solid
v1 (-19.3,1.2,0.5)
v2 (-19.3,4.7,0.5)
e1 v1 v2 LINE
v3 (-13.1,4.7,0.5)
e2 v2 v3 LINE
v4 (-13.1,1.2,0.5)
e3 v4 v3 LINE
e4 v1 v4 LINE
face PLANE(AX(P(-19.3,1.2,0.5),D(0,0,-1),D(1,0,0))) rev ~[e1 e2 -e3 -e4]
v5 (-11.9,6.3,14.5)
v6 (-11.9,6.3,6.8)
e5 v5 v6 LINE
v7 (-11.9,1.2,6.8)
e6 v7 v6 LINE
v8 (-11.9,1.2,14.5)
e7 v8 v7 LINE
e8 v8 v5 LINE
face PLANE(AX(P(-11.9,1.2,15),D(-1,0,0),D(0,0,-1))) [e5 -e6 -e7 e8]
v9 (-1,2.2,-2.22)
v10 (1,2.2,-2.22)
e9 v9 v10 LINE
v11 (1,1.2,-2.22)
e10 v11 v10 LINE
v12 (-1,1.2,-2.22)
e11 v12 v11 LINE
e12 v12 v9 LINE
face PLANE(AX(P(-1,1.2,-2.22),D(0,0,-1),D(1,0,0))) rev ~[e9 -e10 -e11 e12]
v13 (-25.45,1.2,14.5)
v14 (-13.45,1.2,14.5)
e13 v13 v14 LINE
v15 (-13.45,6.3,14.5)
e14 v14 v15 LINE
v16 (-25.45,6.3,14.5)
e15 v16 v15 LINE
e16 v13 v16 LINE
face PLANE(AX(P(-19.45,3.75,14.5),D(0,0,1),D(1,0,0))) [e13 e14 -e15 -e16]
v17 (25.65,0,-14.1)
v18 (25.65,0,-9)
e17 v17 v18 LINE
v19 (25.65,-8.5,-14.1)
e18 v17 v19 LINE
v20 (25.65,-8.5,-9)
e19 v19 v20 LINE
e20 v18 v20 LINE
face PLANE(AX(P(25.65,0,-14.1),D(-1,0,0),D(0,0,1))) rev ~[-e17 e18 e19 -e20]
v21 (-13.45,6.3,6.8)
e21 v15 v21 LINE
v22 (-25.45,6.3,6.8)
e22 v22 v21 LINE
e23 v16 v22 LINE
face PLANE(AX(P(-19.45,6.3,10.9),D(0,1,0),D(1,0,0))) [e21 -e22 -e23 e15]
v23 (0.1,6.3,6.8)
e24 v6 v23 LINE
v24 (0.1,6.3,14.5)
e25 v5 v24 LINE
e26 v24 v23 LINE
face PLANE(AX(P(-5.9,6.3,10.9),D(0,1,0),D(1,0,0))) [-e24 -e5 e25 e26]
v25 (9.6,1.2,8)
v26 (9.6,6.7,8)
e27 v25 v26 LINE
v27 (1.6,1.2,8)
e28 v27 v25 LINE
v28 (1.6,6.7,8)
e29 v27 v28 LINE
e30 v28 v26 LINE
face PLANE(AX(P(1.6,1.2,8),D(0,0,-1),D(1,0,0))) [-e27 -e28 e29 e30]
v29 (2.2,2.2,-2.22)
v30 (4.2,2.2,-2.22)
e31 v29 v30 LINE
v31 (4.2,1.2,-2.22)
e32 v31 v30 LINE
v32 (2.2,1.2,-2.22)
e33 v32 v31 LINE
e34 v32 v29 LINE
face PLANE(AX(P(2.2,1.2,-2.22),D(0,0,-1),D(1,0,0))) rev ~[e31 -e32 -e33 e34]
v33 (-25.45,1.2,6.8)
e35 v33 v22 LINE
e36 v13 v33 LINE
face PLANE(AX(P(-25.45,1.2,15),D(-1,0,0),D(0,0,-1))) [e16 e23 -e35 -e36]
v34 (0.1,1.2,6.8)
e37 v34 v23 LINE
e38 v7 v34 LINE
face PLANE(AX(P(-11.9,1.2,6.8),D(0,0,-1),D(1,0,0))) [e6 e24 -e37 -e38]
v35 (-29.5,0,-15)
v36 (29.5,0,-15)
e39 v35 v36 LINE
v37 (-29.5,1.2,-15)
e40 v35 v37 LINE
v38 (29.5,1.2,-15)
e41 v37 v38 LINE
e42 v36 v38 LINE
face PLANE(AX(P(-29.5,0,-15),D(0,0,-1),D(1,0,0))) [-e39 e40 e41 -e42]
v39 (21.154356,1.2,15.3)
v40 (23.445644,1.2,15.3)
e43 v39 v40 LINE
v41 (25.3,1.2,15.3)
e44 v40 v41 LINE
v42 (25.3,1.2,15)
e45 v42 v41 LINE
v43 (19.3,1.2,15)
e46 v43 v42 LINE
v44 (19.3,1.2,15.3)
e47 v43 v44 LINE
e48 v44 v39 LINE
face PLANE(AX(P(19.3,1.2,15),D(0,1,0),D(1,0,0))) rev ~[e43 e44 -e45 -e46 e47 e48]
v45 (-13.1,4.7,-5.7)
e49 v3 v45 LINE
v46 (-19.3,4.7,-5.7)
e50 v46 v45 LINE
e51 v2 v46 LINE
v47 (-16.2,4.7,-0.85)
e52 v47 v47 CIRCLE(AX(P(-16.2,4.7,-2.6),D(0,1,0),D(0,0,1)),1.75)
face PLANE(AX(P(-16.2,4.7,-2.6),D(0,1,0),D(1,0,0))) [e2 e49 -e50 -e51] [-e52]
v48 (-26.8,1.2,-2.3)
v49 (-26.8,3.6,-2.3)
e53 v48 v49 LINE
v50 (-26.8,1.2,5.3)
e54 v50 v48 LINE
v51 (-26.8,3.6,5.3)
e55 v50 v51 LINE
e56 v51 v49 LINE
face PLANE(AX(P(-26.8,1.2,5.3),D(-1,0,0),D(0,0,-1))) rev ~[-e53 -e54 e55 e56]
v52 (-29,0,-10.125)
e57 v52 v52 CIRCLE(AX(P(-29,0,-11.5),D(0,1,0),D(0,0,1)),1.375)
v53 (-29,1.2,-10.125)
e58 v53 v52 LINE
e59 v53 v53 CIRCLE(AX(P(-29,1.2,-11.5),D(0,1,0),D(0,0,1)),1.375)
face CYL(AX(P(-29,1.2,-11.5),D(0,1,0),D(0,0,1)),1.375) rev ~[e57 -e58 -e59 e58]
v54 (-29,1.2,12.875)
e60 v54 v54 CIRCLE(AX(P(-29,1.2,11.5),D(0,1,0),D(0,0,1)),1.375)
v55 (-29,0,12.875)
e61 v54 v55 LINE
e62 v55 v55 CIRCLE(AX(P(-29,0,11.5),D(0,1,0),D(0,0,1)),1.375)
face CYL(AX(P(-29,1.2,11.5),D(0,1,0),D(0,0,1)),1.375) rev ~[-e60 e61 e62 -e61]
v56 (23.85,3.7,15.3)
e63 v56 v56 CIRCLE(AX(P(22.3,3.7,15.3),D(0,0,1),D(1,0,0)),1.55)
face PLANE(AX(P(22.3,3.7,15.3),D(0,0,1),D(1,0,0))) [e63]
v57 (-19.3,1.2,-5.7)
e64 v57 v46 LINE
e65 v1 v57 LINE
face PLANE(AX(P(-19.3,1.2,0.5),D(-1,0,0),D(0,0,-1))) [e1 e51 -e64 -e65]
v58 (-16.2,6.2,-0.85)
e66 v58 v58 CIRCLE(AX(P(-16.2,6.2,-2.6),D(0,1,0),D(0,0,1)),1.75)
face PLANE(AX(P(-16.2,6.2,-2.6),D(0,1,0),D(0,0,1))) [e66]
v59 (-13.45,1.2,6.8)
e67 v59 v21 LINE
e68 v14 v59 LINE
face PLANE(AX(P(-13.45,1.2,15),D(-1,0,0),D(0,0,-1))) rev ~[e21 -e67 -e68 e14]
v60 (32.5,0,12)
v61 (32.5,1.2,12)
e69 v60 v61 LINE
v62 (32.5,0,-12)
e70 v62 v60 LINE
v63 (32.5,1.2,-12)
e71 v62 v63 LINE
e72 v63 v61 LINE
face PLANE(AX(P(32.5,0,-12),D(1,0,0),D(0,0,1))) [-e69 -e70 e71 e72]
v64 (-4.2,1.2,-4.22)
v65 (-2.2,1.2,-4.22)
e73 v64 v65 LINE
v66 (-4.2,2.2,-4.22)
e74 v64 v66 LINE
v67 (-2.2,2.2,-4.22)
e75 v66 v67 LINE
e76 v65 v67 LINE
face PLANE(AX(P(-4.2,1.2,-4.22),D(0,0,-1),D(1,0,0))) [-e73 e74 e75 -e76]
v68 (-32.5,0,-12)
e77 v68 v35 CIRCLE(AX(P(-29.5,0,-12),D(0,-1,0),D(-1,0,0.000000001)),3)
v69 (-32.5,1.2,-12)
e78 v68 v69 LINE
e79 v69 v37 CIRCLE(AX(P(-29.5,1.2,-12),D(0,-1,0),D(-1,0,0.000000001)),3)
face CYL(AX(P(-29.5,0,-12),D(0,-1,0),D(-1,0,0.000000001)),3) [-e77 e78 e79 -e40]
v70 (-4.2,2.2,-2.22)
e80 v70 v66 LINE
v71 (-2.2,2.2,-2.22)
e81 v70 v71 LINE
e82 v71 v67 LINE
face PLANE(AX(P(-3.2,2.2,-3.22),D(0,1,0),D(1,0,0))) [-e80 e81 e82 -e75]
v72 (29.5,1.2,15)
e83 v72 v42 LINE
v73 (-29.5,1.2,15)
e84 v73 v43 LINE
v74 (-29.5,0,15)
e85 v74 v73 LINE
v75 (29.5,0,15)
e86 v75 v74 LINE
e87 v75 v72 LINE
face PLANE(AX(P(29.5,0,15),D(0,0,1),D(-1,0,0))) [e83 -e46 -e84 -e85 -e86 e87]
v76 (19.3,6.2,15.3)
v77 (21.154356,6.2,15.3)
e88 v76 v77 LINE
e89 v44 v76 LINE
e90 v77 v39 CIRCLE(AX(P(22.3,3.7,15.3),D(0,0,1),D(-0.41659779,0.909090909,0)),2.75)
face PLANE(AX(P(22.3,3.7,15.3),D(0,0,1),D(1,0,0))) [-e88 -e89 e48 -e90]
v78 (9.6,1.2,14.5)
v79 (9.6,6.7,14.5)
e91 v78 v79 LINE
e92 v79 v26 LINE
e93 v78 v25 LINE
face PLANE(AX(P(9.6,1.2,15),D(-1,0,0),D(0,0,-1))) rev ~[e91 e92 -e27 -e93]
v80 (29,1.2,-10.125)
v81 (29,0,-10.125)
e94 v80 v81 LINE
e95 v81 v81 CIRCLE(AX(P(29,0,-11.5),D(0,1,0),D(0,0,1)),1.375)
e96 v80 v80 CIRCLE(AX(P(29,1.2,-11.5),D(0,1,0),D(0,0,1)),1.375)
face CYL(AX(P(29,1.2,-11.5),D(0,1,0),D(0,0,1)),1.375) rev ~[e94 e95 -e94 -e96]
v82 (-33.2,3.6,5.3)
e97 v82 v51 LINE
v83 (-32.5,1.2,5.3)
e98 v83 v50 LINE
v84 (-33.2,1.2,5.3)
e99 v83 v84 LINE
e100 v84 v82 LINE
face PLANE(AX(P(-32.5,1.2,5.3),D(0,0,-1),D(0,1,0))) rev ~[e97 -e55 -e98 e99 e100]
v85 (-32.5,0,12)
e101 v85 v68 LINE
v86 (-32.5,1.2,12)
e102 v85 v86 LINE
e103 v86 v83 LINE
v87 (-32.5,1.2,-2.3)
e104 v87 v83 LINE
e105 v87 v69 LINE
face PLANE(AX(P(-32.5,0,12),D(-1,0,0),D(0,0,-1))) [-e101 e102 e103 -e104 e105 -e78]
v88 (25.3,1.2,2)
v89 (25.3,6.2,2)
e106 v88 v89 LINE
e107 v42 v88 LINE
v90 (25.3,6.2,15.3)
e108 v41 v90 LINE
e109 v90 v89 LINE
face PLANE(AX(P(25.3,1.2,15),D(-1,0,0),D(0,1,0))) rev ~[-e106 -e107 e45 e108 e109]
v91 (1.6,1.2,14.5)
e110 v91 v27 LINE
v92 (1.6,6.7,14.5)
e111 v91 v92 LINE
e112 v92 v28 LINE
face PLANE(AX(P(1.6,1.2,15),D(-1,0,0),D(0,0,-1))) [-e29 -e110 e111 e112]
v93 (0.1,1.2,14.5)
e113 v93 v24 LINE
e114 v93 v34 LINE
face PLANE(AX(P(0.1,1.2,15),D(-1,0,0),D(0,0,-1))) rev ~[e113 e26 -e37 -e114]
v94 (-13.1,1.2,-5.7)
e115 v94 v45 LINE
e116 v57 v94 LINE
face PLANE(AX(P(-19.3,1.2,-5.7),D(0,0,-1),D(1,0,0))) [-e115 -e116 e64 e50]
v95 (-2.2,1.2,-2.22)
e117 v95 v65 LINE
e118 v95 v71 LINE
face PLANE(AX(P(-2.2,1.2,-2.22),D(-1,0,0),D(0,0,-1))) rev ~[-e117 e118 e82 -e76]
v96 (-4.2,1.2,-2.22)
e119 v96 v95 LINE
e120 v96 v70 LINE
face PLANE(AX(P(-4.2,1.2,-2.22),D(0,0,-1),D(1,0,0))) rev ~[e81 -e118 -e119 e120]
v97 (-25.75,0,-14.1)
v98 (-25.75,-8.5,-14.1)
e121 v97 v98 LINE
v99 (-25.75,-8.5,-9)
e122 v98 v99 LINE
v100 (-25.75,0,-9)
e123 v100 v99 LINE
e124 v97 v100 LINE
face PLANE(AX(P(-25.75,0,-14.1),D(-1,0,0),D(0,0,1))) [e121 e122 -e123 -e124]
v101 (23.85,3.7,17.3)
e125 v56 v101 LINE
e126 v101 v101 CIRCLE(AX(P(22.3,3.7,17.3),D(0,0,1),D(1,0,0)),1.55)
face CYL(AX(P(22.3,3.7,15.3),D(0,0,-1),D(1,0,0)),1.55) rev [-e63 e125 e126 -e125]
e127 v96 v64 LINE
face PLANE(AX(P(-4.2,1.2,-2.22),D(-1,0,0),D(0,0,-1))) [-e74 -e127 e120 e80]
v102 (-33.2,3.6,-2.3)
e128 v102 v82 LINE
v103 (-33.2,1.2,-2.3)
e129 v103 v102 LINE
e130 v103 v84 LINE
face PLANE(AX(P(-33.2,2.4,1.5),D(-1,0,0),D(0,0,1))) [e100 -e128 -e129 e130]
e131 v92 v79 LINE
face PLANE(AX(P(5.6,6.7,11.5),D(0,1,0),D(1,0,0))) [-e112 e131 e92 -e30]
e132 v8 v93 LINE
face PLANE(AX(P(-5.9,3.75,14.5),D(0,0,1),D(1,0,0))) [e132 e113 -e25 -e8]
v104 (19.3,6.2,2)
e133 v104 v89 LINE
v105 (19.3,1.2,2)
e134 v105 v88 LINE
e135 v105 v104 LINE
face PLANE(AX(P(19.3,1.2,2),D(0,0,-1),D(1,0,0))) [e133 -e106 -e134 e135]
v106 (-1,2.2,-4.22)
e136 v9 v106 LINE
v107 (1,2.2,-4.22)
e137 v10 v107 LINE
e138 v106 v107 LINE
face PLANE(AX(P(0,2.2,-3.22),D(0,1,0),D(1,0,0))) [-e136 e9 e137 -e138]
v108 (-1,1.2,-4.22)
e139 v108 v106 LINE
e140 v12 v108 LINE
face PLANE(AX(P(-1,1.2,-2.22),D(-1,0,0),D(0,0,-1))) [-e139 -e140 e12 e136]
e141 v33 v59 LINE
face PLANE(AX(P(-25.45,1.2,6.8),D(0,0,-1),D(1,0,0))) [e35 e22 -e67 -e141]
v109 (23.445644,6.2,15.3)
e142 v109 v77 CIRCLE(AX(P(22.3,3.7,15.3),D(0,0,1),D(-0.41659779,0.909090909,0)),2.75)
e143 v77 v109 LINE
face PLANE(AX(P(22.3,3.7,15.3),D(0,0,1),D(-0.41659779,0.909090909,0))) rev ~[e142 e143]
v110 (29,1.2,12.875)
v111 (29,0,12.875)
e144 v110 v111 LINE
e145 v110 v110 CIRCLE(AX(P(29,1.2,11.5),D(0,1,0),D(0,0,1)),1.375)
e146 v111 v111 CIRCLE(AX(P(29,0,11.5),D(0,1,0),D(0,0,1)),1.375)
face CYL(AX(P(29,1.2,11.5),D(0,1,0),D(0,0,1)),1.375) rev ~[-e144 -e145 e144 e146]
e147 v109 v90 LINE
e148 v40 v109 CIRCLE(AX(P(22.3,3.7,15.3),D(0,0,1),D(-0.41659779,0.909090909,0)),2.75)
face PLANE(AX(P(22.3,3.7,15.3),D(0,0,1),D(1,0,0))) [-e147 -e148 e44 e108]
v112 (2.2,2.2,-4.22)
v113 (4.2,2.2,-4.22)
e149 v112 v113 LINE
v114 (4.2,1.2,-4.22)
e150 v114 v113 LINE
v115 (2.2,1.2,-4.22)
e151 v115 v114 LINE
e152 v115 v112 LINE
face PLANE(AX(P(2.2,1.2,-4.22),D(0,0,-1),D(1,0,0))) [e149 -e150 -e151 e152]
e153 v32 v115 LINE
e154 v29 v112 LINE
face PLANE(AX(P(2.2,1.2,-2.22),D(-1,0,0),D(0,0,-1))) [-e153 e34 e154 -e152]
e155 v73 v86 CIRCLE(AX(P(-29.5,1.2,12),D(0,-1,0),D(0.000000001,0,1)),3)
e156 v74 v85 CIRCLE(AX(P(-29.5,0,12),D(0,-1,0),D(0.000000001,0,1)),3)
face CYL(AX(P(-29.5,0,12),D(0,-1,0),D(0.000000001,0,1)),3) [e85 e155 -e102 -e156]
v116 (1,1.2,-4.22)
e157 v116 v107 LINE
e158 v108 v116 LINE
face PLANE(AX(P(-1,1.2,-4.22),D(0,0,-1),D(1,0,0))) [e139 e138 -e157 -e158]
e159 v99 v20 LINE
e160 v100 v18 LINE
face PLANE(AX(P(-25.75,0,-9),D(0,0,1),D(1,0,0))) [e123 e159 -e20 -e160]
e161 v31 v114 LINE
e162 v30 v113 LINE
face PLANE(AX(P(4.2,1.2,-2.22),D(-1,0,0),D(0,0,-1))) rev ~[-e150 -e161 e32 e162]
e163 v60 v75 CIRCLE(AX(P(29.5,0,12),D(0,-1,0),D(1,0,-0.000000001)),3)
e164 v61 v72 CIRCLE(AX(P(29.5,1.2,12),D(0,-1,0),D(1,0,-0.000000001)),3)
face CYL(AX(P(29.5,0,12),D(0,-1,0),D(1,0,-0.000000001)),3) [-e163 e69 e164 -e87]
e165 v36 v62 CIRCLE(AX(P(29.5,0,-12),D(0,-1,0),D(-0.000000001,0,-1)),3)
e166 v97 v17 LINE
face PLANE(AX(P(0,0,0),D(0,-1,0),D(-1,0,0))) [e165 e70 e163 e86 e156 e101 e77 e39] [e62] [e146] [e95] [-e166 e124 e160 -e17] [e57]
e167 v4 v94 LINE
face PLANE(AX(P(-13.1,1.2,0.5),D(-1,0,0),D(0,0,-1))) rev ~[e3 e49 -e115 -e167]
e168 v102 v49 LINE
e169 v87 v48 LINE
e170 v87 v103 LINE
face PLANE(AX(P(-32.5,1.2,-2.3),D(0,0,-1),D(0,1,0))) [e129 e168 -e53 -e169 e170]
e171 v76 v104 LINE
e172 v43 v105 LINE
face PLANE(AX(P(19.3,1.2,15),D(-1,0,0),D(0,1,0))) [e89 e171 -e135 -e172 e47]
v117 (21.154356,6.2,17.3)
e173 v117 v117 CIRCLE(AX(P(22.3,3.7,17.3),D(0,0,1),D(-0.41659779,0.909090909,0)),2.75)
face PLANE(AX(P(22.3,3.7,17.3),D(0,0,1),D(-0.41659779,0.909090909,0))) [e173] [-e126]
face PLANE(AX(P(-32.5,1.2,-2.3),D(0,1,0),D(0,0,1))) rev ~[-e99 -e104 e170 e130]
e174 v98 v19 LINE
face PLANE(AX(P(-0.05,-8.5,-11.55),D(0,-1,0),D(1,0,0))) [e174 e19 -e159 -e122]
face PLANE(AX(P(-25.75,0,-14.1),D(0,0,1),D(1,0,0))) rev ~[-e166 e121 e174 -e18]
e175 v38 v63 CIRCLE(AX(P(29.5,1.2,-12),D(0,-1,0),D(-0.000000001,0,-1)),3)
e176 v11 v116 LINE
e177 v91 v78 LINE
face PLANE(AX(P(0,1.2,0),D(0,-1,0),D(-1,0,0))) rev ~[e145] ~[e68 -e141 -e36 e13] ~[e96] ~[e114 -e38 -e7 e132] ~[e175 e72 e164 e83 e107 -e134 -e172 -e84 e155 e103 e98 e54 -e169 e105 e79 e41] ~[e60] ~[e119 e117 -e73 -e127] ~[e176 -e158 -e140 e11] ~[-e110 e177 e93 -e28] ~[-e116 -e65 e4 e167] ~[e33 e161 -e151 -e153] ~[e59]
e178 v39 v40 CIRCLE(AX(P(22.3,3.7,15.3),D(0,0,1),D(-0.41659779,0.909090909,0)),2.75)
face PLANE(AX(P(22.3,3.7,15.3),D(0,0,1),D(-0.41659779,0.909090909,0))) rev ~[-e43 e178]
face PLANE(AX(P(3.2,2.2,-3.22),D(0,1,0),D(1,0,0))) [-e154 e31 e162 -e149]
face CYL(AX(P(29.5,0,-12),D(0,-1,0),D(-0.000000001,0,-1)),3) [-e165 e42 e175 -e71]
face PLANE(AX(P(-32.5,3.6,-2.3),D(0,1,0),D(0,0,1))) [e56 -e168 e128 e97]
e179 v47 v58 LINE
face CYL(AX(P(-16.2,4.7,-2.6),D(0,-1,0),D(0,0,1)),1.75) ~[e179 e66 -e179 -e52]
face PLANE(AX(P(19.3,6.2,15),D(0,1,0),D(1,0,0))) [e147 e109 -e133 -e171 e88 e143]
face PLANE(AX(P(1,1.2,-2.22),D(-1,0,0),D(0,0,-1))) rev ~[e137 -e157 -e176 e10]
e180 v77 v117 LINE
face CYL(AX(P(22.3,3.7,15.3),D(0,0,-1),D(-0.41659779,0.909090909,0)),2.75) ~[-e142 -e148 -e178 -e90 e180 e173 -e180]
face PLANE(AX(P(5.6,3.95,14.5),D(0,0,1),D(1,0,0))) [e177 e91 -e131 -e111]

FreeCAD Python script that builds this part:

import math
import FreeCAD as App
import Part
import Sketcher

V = App.Vector
Q = App.Units.Quantity

doc = App.newDocument("Part")
body = doc.addObject("PartDesign::Body", "Body")

# Sketch on XZ plane
sketch1 = doc.addObject("Sketcher::SketchObject", "Sketch")
body.addObject(sketch1)
sketch1.AttachmentSupport = (doc.XZ_Plane, [""])
sketch1.MapMode = "FlatFace"
sketch1.addGeometry([
    Part.LineSegment(V(29.5, -15, 0), V(-29.5, -15, 0)),  # 0
    Part.ArcOfCircle(Part.Circle(V(-29.5, -12, 0), V(0, 0, 1), 3), math.radians(180), math.radians(270)),  # 1
    Part.LineSegment(V(-32.5, -12, 0), V(-32.5, 12, 0)),  # 2
    Part.ArcOfCircle(Part.Circle(V(-29.5, 12, 0), V(0, 0, 1), 3), math.radians(90), math.radians(180)),  # 3
    Part.LineSegment(V(-29.5, 15, 0), V(29.5, 15, 0)),  # 4
    Part.ArcOfCircle(Part.Circle(V(29.5, 12, 0), V(0, 0, 1), 3), math.radians(0), math.radians(90)),  # 5
    Part.LineSegment(V(32.5, 12, 0), V(32.5, -12, 0)),  # 6
    Part.ArcOfCircle(Part.Circle(V(29.5, -12, 0), V(0, 0, 1), 3), math.radians(-90), math.radians(0)),  # 7
], False)
sketch1.addConstraint([
    Sketcher.Constraint("Tangent", 0, 2, 1, 2),
    Sketcher.Constraint("Tangent", 1, 1, 2, 1),
    Sketcher.Constraint("Tangent", 2, 2, 3, 2),
    Sketcher.Constraint("Tangent", 3, 1, 4, 1),
    Sketcher.Constraint("Tangent", 4, 2, 5, 2),
    Sketcher.Constraint("Tangent", 5, 1, 6, 1),
    Sketcher.Constraint("Tangent", 6, 2, 7, 2),
    Sketcher.Constraint("Tangent", 7, 1, 0, 1),
    Sketcher.Constraint("Horizontal", 0),
    Sketcher.Constraint("Vertical", 2),
    Sketcher.Constraint("Horizontal", 4),
    Sketcher.Constraint("Vertical", 6),
    Sketcher.Constraint("Equal", 1, 3),
    Sketcher.Constraint("Equal", 3, 5),
    Sketcher.Constraint("Equal", 5, 7),
    Sketcher.Constraint("Symmetric", 1, 3, 5, 3, -1, 1),
    Sketcher.Constraint("Radius", 1, Q("3 mm")),
    Sketcher.Constraint("DistanceX", 0, 2, 0, 1, Q("59 mm")),
    Sketcher.Constraint("DistanceY", 2, 1, 2, 2, Q("24 mm")),
])
pad1 = doc.addObject("PartDesign::Pad", "Pad")
body.addObject(pad1)
pad1.Profile = sketch1
pad1.Length = 1.2
pad1.Reversed = True

# Sketch on XZ plane
sketch2 = doc.addObject("Sketcher::SketchObject", "Sketch001")
body.addObject(sketch2)
sketch2.AttachmentSupport = (doc.XZ_Plane, [""])
sketch2.MapMode = "FlatFace"
sketch2.AttachmentOffset = App.Placement(V(0, 0, -1.2), App.Rotation())
sketch2.addGeometry([
    Part.Circle(V(29, 11.5, 0), V(0, 0, 1), 1.4),
    Part.Circle(V(29, -11.5, 0), V(0, 0, 1), 1.4),
    Part.Circle(V(-29, 11.5, 0), V(0, 0, 1), 1.4),
    Part.Circle(V(-29, -11.5, 0), V(0, 0, 1), 1.4),
], False)
sketch2.addConstraint([
    Sketcher.Constraint("Equal", 0, 1),
    Sketcher.Constraint("Equal", 1, 2),
    Sketcher.Constraint("Equal", 2, 3),
    Sketcher.Constraint("Symmetric", 1, 3, 2, 3, -1, 1),
    Sketcher.Constraint("Symmetric", 0, 3, 3, 3, -1, 1),
    Sketcher.Constraint("Symmetric", 0, 3, 2, 3, -2),
    Sketcher.Constraint("Diameter", 0, Q("2.75 mm")),
    Sketcher.Constraint("DistanceX", -1, 1, 0, 3, Q("29 mm")),
    Sketcher.Constraint("DistanceY", 1, 3, 0, 3, Q("23 mm")),
])
pocket1 = doc.addObject("PartDesign::Pocket", "Pocket")
body.addObject(pocket1)
pocket1.Profile = sketch2
pocket1.Length = 1.2
pocket1.Reversed = True

# Sketch on XZ plane
sketch3 = doc.addObject("Sketcher::SketchObject", "Sketch002")
body.addObject(sketch3)
sketch3.AttachmentSupport = (doc.XZ_Plane, [""])
sketch3.MapMode = "FlatFace"
sketch3.AttachmentOffset = App.Placement(V(0, 0, -1.2), App.Rotation())
sketch3.addGeometry([
    Part.LineSegment(V(19, 2, 0), V(19, 15, 0)),
    Part.LineSegment(V(19, 15, 0), V(25, 15, 0)),
    Part.LineSegment(V(25, 15, 0), V(25, 2, 0)),
    Part.LineSegment(V(25, 2, 0), V(19, 2, 0)),
], False)
sketch3.addConstraint([
    Sketcher.Constraint("Coincident", 0, 2, 1, 1),
    Sketcher.Constraint("Coincident", 1, 2, 2, 1),
    Sketcher.Constraint("Coincident", 2, 2, 3, 1),
    Sketcher.Constraint("Coincident", 3, 2, 0, 1),
    Sketcher.Constraint("Vertical", 0),
    Sketcher.Constraint("Horizontal", 1),
    Sketcher.Constraint("Vertical", 2),
    Sketcher.Constraint("Horizontal", 3),
    Sketcher.Constraint("DistanceX", 1, 1, 1, 2, Q("6 mm")),
    Sketcher.Constraint("DistanceY", 0, 1, 0, 2, Q("13 mm")),
    Sketcher.Constraint("DistanceY", -1, 1, 0, 2, Q("15 mm")),
    Sketcher.Constraint("DistanceX", -1, 1, 0, 2, Q("19.3 mm")),
])
pad2 = doc.addObject("PartDesign::Pad", "Pad001")
body.addObject(pad2)
pad2.Profile = sketch3
pad2.Length = 5
pad2.Reversed = True

# Sketch on XY plane
sketch4 = doc.addObject("Sketcher::SketchObject", "Sketch003")
body.addObject(sketch4)
sketch4.AttachmentSupport = (doc.XY_Plane, [""])
sketch4.MapMode = "FlatFace"
sketch4.AttachmentOffset = App.Placement(V(0, 0, 15), App.Rotation())
sketch4.addGeometry([
    Part.LineSegment(V(19, 6, 0), V(19, 1, 0)),
    Part.LineSegment(V(19, 1, 0), V(25, 1, 0)),
    Part.LineSegment(V(25, 1, 0), V(25, 6, 0)),
    Part.LineSegment(V(25, 6, 0), V(19, 6, 0)),
], False)
sketch4.addConstraint([
    Sketcher.Constraint("Coincident", 0, 2, 1, 1),
    Sketcher.Constraint("Coincident", 1, 2, 2, 1),
    Sketcher.Constraint("Coincident", 2, 2, 3, 1),
    Sketcher.Constraint("Coincident", 3, 2, 0, 1),
    Sketcher.Constraint("Vertical", 0),
    Sketcher.Constraint("Horizontal", 1),
    Sketcher.Constraint("Vertical", 2),
    Sketcher.Constraint("Horizontal", 3),
    Sketcher.Constraint("DistanceX", 1, 1, 1, 2, Q("6 mm")),
    Sketcher.Constraint("DistanceY", 0, 2, 0, 1, Q("5 mm")),
    Sketcher.Constraint("DistanceX", -1, 1, 0, 2, Q("19.3 mm")),
    Sketcher.Constraint("DistanceY", -1, 1, 0, 2, Q("1.2 mm")),
])
pad3 = doc.addObject("PartDesign::Pad", "Pad002")
body.addObject(pad3)
pad3.Profile = sketch4
pad3.Length = 0.3

# Sketch on XZ plane
sketch5 = doc.addObject("Sketcher::SketchObject", "Sketch004")
body.addObject(sketch5)
sketch5.AttachmentSupport = (doc.XZ_Plane, [""])
sketch5.MapMode = "FlatFace"
sketch5.AttachmentOffset = App.Placement(V(0, 0, -1.2), App.Rotation())
sketch5.addGeometry([
    Part.LineSegment(V(2, 8, 0), V(2, 15, 0)),
    Part.LineSegment(V(2, 15, 0), V(10, 15, 0)),
    Part.LineSegment(V(10, 15, 0), V(10, 8, 0)),
    Part.LineSegment(V(10, 8, 0), V(2, 8, 0)),
], False)
sketch5.addConstraint([
    Sketcher.Constraint("Coincident", 0, 2, 1, 1),
    Sketcher.Constraint("Coincident", 1, 2, 2, 1),
    Sketcher.Constraint("Coincident", 2, 2, 3, 1),
    Sketcher.Constraint("Coincident", 3, 2, 0, 1),
    Sketcher.Constraint("Vertical", 0),
    Sketcher.Constraint("Horizontal", 1),
    Sketcher.Constraint("Vertical", 2),
    Sketcher.Constraint("Horizontal", 3),
    Sketcher.Constraint("DistanceX", 1, 1, 1, 2, Q("8 mm")),
    Sketcher.Constraint("DistanceY", 0, 1, 0, 2, Q("7 mm")),
    Sketcher.Constraint("DistanceY", -1, 1, 0, 2, Q("15 mm")),
    Sketcher.Constraint("DistanceX", -1, 1, 0, 2, Q("1.6 mm")),
])
pad4 = doc.addObject("PartDesign::Pad", "Pad003")
body.addObject(pad4)
pad4.Profile = sketch5
pad4.Length = 5.5
pad4.Reversed = True

# Sketch on XZ plane
sketch6 = doc.addObject("Sketcher::SketchObject", "Sketch005")
body.addObject(sketch6)
sketch6.AttachmentSupport = (doc.XZ_Plane, [""])
sketch6.MapMode = "FlatFace"
sketch6.AttachmentOffset = App.Placement(V(0, 0, -1.2), App.Rotation())
sketch6.addGeometry([
    Part.LineSegment(V(-12, 7, 0), V(-12, 15, 0)),
    Part.LineSegment(V(-12, 15, 0), V(0, 15, 0)),
    Part.LineSegment(V(0, 15, 0), V(0, 7, 0)),
    Part.LineSegment(V(0, 7, 0), V(-12, 7, 0)),
], False)
sketch6.addConstraint([
    Sketcher.Constraint("Coincident", 0, 2, 1, 1),
    Sketcher.Constraint("Coincident", 1, 2, 2, 1),
    Sketcher.Constraint("Coincident", 2, 2, 3, 1),
    Sketcher.Constraint("Coincident", 3, 2, 0, 1),
    Sketcher.Constraint("Vertical", 0),
    Sketcher.Constraint("Horizontal", 1),
    Sketcher.Constraint("Vertical", 2),
    Sketcher.Constraint("Horizontal", 3),
    Sketcher.Constraint("DistanceX", 1, 1, 1, 2, Q("12 mm")),
    Sketcher.Constraint("DistanceY", 0, 1, 0, 2, Q("8.2 mm")),
    Sketcher.Constraint("DistanceY", -1, 1, 0, 2, Q("15 mm")),
    Sketcher.Constraint("DistanceX", 0, 2, -1, 1, Q("11.9 mm")),
])
pad5 = doc.addObject("PartDesign::Pad", "Pad004")
body.addObject(pad5)
pad5.Profile = sketch6
pad5.Length = 5.1
pad5.Reversed = True

# Sketch on XZ plane
sketch7 = doc.addObject("Sketcher::SketchObject", "Sketch006")
body.addObject(sketch7)
sketch7.AttachmentSupport = (doc.XZ_Plane, [""])
sketch7.MapMode = "FlatFace"
sketch7.AttachmentOffset = App.Placement(V(0, 0, -1.2), App.Rotation())
sketch7.addGeometry([
    Part.LineSegment(V(-25, 7, 0), V(-25, 15, 0)),
    Part.LineSegment(V(-25, 15, 0), V(-13, 15, 0)),
    Part.LineSegment(V(-13, 15, 0), V(-13, 7, 0)),
    Part.LineSegment(V(-13, 7, 0), V(-25, 7, 0)),
], False)
sketch7.addConstraint([
    Sketcher.Constraint("Coincident", 0, 2, 1, 1),
    Sketcher.Constraint("Coincident", 1, 2, 2, 1),
    Sketcher.Constraint("Coincident", 2, 2, 3, 1),
    Sketcher.Constraint("Coincident", 3, 2, 0, 1),
    Sketcher.Constraint("Vertical", 0),
    Sketcher.Constraint("Horizontal", 1),
    Sketcher.Constraint("Vertical", 2),
    Sketcher.Constraint("Horizontal", 3),
    Sketcher.Constraint("DistanceX", 1, 1, 1, 2, Q("12 mm")),
    Sketcher.Constraint("DistanceY", 0, 1, 0, 2, Q("8.2 mm")),
    Sketcher.Constraint("DistanceY", -1, 1, 0, 2, Q("15 mm")),
    Sketcher.Constraint("DistanceX", 0, 2, -1, 1, Q("25.45 mm")),
])
pad6 = doc.addObject("PartDesign::Pad", "Pad005")
body.addObject(pad6)
pad6.Profile = sketch7
pad6.Length = 5.1
pad6.Reversed = True

# Sketch on XZ plane
sketch8 = doc.addObject("Sketcher::SketchObject", "Sketch007")
body.addObject(sketch8)
sketch8.AttachmentSupport = (doc.XZ_Plane, [""])
sketch8.MapMode = "FlatFace"
sketch8.AttachmentOffset = App.Placement(V(0, 0, -1.2), App.Rotation())
sketch8.addGeometry([
    Part.LineSegment(V(-32, -2, 0), V(-32, 5, 0)),
    Part.LineSegment(V(-32, 5, 0), V(-27, 5, 0)),
    Part.LineSegment(V(-27, 5, 0), V(-27, -2, 0)),
    Part.LineSegment(V(-27, -2, 0), V(-32, -2, 0)),
], False)
sketch8.addConstraint([
    Sketcher.Constraint("Coincident", 0, 2, 1, 1),
    Sketcher.Constraint("Coincident", 1, 2, 2, 1),
    Sketcher.Constraint("Coincident", 2, 2, 3, 1),
    Sketcher.Constraint("Coincident", 3, 2, 0, 1),
    Sketcher.Constraint("Vertical", 0),
    Sketcher.Constraint("Horizontal", 1),
    Sketcher.Constraint("Vertical", 2),
    Sketcher.Constraint("Horizontal", 3),
    Sketcher.Constraint("DistanceX", 1, 1, 1, 2, Q("5.7 mm")),
    Sketcher.Constraint("DistanceY", 0, 1, 0, 2, Q("7.6 mm")),
    Sketcher.Constraint("DistanceX", 0, 2, -1, 1, Q("32.5 mm")),
    Sketcher.Constraint("DistanceY", -1, 1, 0, 2, Q("5.3 mm")),
])
pad7 = doc.addObject("PartDesign::Pad", "Pad006")
body.addObject(pad7)
pad7.Profile = sketch8
pad7.Length = 2.4
pad7.Reversed = True

# Sketch on YZ plane
sketch9 = doc.addObject("Sketcher::SketchObject", "Sketch008")
body.addObject(sketch9)
sketch9.AttachmentSupport = (doc.YZ_Plane, [""])
sketch9.MapMode = "FlatFace"
sketch9.AttachmentOffset = App.Placement(V(0, 0, -32.5), App.Rotation())
sketch9.addGeometry([
    Part.LineSegment(V(3.6, -2.3, 0), V(1.2, -2.3, 0)),
    Part.LineSegment(V(1.2, -2.3, 0), V(1.2, 5.3, 0)),
    Part.LineSegment(V(1.2, 5.3, 0), V(3.6, 5.3, 0)),
    Part.LineSegment(V(3.6, 5.3, 0), V(3.6, -2.3, 0)),
], False)
sketch9.addConstraint([
    Sketcher.Constraint("Coincident", 0, 2, 1, 1),
    Sketcher.Constraint("Coincident", 1, 2, 2, 1),
    Sketcher.Constraint("Coincident", 2, 2, 3, 1),
    Sketcher.Constraint("Coincident", 3, 2, 0, 1),
    Sketcher.Constraint("Horizontal", 0),
    Sketcher.Constraint("Vertical", 1),
    Sketcher.Constraint("Horizontal", 2),
    Sketcher.Constraint("Vertical", 3),
    Sketcher.Constraint("DistanceX", 0, 2, 0, 1, Q("2.4 mm")),
    Sketcher.Constraint("DistanceY", 1, 1, 1, 2, Q("7.6 mm")),
    Sketcher.Constraint("DistanceX", -1, 1, 0, 2, Q("1.2 mm")),
    Sketcher.Constraint("DistanceY", 0, 2, -1, 1, Q("2.3 mm")),
])
pad8 = doc.addObject("PartDesign::Pad", "Pad007")
body.addObject(pad8)
pad8.Profile = sketch9
pad8.Length = 0.7
pad8.Reversed = True

# Sketch on XY plane
sketch10 = doc.addObject("Sketcher::SketchObject", "Sketch009")
body.addObject(sketch10)
sketch10.AttachmentSupport = (doc.XY_Plane, [""])
sketch10.MapMode = "FlatFace"
sketch10.AttachmentOffset = App.Placement(V(0, 0, 15), App.Rotation())
sketch10.addGeometry([
    Part.LineSegment(V(-25, 6, 0), V(-25, 1, 0)),  # 0
    Part.LineSegment(V(-25, 1, 0), V(-13, 1, 0)),  # 1
    Part.LineSegment(V(-13, 1, 0), V(-13, 6, 0)),  # 2
    Part.LineSegment(V(-13, 6, 0), V(-25, 6, 0)),  # 3
    Part.LineSegment(V(-12, 6, 0), V(-12, 1, 0)),  # 4
    Part.LineSegment(V(-12, 1, 0), V(0, 1, 0)),  # 5
    Part.LineSegment(V(0, 1, 0), V(0, 6, 0)),  # 6
    Part.LineSegment(V(0, 6, 0), V(-12, 6, 0)),  # 7
    Part.LineSegment(V(2, 7, 0), V(2, 1, 0)),  # 8
    Part.LineSegment(V(2, 1, 0), V(10, 1, 0)),  # 9
    Part.LineSegment(V(10, 1, 0), V(10, 7, 0)),  # 10
    Part.LineSegment(V(10, 7, 0), V(2, 7, 0)),  # 11
], False)
sketch10.addConstraint([
    Sketcher.Constraint("Coincident", 0, 2, 1, 1),
    Sketcher.Constraint("Coincident", 1, 2, 2, 1),
    Sketcher.Constraint("Coincident", 2, 2, 3, 1),
    Sketcher.Constraint("Coincident", 3, 2, 0, 1),
    Sketcher.Constraint("Coincident", 4, 2, 5, 1),
    Sketcher.Constraint("Coincident", 5, 2, 6, 1),
    Sketcher.Constraint("Coincident", 6, 2, 7, 1),
    Sketcher.Constraint("Coincident", 7, 2, 4, 1),
    Sketcher.Constraint("Coincident", 8, 2, 9, 1),
    Sketcher.Constraint("Coincident", 9, 2, 10, 1),
    Sketcher.Constraint("Coincident", 10, 2, 11, 1),
    Sketcher.Constraint("Coincident", 11, 2, 8, 1),
    Sketcher.Constraint("Vertical", 0),
    Sketcher.Constraint("Horizontal", 1),
    Sketcher.Constraint("Vertical", 2),
    Sketcher.Constraint("Horizontal", 3),
    Sketcher.Constraint("Vertical", 4),
    Sketcher.Constraint("Horizontal", 5),
    Sketcher.Constraint("Vertical", 6),
    Sketcher.Constraint("Horizontal", 7),
    Sketcher.Constraint("Vertical", 8),
    Sketcher.Constraint("Horizontal", 9),
    Sketcher.Constraint("Vertical", 10),
    Sketcher.Constraint("Horizontal", 11),
    Sketcher.Constraint("Horizontal", 1, 2, 4, 2),
    Sketcher.Constraint("Horizontal", 3, 2, 6, 2),
    Sketcher.Constraint("Horizontal", 5, 2, 8, 2),
    Sketcher.Constraint("Equal", 3, 5),
    Sketcher.Constraint("DistanceX", 1, 1, 1, 2, Q("12 mm")),
    Sketcher.Constraint("DistanceX", 9, 1, 9, 2, Q("8 mm")),
    Sketcher.Constraint("DistanceY", 0, 2, 0, 1, Q("5.1 mm")),
    Sketcher.Constraint("DistanceY", 8, 2, 8, 1, Q("5.5 mm")),
    Sketcher.Constraint("DistanceY", -1, 1, 0, 2, Q("1.2 mm")),
    Sketcher.Constraint("DistanceX", 4, 2, -1, 1, Q("11.9 mm")),
    Sketcher.Constraint("DistanceX", -1, 1, 8, 2, Q("1.6 mm")),
    Sketcher.Constraint("DistanceX", 0, 2, -1, 1, Q("25.45 mm")),
])
pocket2 = doc.addObject("PartDesign::Pocket", "Pocket001")
body.addObject(pocket2)
pocket2.Profile = sketch10
pocket2.Length = 0.5

# Sketch on XZ plane
sketch11 = doc.addObject("Sketcher::SketchObject", "Sketch010")
body.addObject(sketch11)
sketch11.AttachmentSupport = (doc.XZ_Plane, [""])
sketch11.MapMode = "FlatFace"
sketch11.addGeometry([
    Part.LineSegment(V(-26, -9, 0), V(-26, -14, 0)),
    Part.LineSegment(V(-26, -14, 0), V(26, -14, 0)),
    Part.LineSegment(V(26, -14, 0), V(26, -9, 0)),
    Part.LineSegment(V(26, -9, 0), V(-26, -9, 0)),
], False)
sketch11.addConstraint([
    Sketcher.Constraint("Coincident", 0, 2, 1, 1),
    Sketcher.Constraint("Coincident", 1, 2, 2, 1),
    Sketcher.Constraint("Coincident", 2, 2, 3, 1),
    Sketcher.Constraint("Coincident", 3, 2, 0, 1),
    Sketcher.Constraint("Vertical", 0),
    Sketcher.Constraint("Horizontal", 1),
    Sketcher.Constraint("Vertical", 2),
    Sketcher.Constraint("Horizontal", 3),
    Sketcher.Constraint("DistanceX", 1, 1, 1, 2, Q("51.4 mm")),
    Sketcher.Constraint("DistanceY", 0, 2, 0, 1, Q("5.1 mm")),
    Sketcher.Constraint("DistanceY", 2, 2, -1, 1, Q("9 mm")),
    Sketcher.Constraint("DistanceX", 0, 2, -1, 1, Q("25.75 mm")),
])
pad9 = doc.addObject("PartDesign::Pad", "Pad008")
body.addObject(pad9)
pad9.Profile = sketch11
pad9.Length = 8.5

# Sketch on XZ plane
sketch12 = doc.addObject("Sketcher::SketchObject", "Sketch011")
body.addObject(sketch12)
sketch12.AttachmentSupport = (doc.XZ_Plane, [""])
sketch12.MapMode = "FlatFace"
sketch12.AttachmentOffset = App.Placement(V(0, 0, -1.2), App.Rotation())
sketch12.addGeometry([
    Part.LineSegment(V(-19, -6, 0), V(-19, 0, 0)),
    Part.LineSegment(V(-19, 0, 0), V(-13, 0, 0)),
    Part.LineSegment(V(-13, 0, 0), V(-13, -6, 0)),
    Part.LineSegment(V(-13, -6, 0), V(-19, -6, 0)),
], False)
sketch12.addConstraint([
    Sketcher.Constraint("Coincident", 0, 2, 1, 1),
    Sketcher.Constraint("Coincident", 1, 2, 2, 1),
    Sketcher.Constraint("Coincident", 2, 2, 3, 1),
    Sketcher.Constraint("Coincident", 3, 2, 0, 1),
    Sketcher.Constraint("Vertical", 0),
    Sketcher.Constraint("Horizontal", 1),
    Sketcher.Constraint("Vertical", 2),
    Sketcher.Constraint("Horizontal", 3),
    Sketcher.Constraint("Equal", 3, 0),
    Sketcher.Constraint("DistanceX", 1, 1, 1, 2, Q("6.2 mm")),
    Sketcher.Constraint("DistanceX", 0, 2, -1, 1, Q("19.3 mm")),
    Sketcher.Constraint("DistanceY", -1, 1, 0, 2, Q("0.5 mm")),
])
pad10 = doc.addObject("PartDesign::Pad", "Pad009")
body.addObject(pad10)
pad10.Profile = sketch12
pad10.Length = 3.5
pad10.Reversed = True

# Sketch on XZ plane
sketch13 = doc.addObject("Sketcher::SketchObject", "Sketch012")
body.addObject(sketch13)
sketch13.AttachmentSupport = (doc.XZ_Plane, [""])
sketch13.MapMode = "FlatFace"
sketch13.AttachmentOffset = App.Placement(V(0, 0, -4.7), App.Rotation())
sketch13.addGeometry(Part.Circle(V(-16.2, -2.6, 0), V(0, 0, 1), 1.8), False)
sketch13.addConstraint([
    Sketcher.Constraint("Diameter", 0, Q("3.5 mm")),
    Sketcher.Constraint("DistanceX", 0, 3, -1, 1, Q("16.2 mm")),
    Sketcher.Constraint("DistanceY", 0, 3, -1, 1, Q("2.6 mm")),
])
pad11 = doc.addObject("PartDesign::Pad", "Pad010")
body.addObject(pad11)
pad11.Profile = sketch13
pad11.Length = 1.5
pad11.Reversed = True

# Sketch on XZ plane
sketch14 = doc.addObject("Sketcher::SketchObject", "Sketch013")
body.addObject(sketch14)
sketch14.AttachmentSupport = (doc.XZ_Plane, [""])
sketch14.MapMode = "FlatFace"
sketch14.AttachmentOffset = App.Placement(V(0, 0, -1.2), App.Rotation())
sketch14.addGeometry([
    Part.LineSegment(V(2.2, -4.2, 0), V(2.2, -2.2, 0)),  # 0
    Part.LineSegment(V(2.2, -2.2, 0), V(4.2, -2.2, 0)),  # 1
    Part.LineSegment(V(4.2, -2.2, 0), V(4.2, -4.2, 0)),  # 2
    Part.LineSegment(V(4.2, -4.2, 0), V(2.2, -4.2, 0)),  # 3
    Part.LineSegment(V(-1, -4.2, 0), V(-1, -2.2, 0)),  # 4
    Part.LineSegment(V(-1, -2.2, 0), V(1, -2.2, 0)),  # 5
    Part.LineSegment(V(1, -2.2, 0), V(1, -4.2, 0)),  # 6
    Part.LineSegment(V(1, -4.2, 0), V(-1, -4.2, 0)),  # 7
    Part.LineSegment(V(-4.2, -4.2, 0), V(-4.2, -2.2, 0)),  # 8
    Part.LineSegment(V(-4.2, -2.2, 0), V(-2.2, -2.2, 0)),  # 9
    Part.LineSegment(V(-2.2, -2.2, 0), V(-2.2, -4.2, 0)),  # 10
    Part.LineSegment(V(-2.2, -4.2, 0), V(-4.2, -4.2, 0)),  # 11
], False)
sketch14.addConstraint([
    Sketcher.Constraint("Coincident", 0, 2, 1, 1),
    Sketcher.Constraint("Coincident", 1, 2, 2, 1),
    Sketcher.Constraint("Coincident", 2, 2, 3, 1),
    Sketcher.Constraint("Coincident", 3, 2, 0, 1),
    Sketcher.Constraint("Coincident", 4, 2, 5, 1),
    Sketcher.Constraint("Coincident", 5, 2, 6, 1),
    Sketcher.Constraint("Coincident", 6, 2, 7, 1),
    Sketcher.Constraint("Coincident", 7, 2, 4, 1),
    Sketcher.Constraint("Coincident", 8, 2, 9, 1),
    Sketcher.Constraint("Coincident", 9, 2, 10, 1),
    Sketcher.Constraint("Coincident", 10, 2, 11, 1),
    Sketcher.Constraint("Coincident", 11, 2, 8, 1),
    Sketcher.Constraint("Vertical", 0),
    Sketcher.Constraint("Horizontal", 1),
    Sketcher.Constraint("Vertical", 2),
    Sketcher.Constraint("Horizontal", 3),
    Sketcher.Constraint("Vertical", 4),
    Sketcher.Constraint("Horizontal", 5),
    Sketcher.Constraint("Vertical", 6),
    Sketcher.Constraint("Horizontal", 7),
    Sketcher.Constraint("Vertical", 8),
    Sketcher.Constraint("Horizontal", 9),
    Sketcher.Constraint("Vertical", 10),
    Sketcher.Constraint("Horizontal", 11),
    Sketcher.Constraint("Symmetric", 1, 2, 8, 2, -2),
    Sketcher.Constraint("Symmetric", 3, 2, 10, 2, -2),
    Sketcher.Constraint("Horizontal", 1, 2, 4, 2),
    Sketcher.Constraint("Horizontal", 3, 2, 6, 2),
    Sketcher.Constraint("Equal", 3, 5),
    Sketcher.Constraint("Equal", 11, 0),
    Sketcher.Constraint("DistanceX", 1, 1, 1, 2, Q("2 mm")),
    Sketcher.Constraint("DistanceX", 4, 2, -1, 1, Q("1 mm")),
    Sketcher.Constraint("DistanceX", -1, 1, 0, 2, Q("2.2 mm")),
    Sketcher.Constraint("DistanceY", 0, 2, -1, 1, Q("2.22 mm")),
])
pad12 = doc.addObject("PartDesign::Pad", "Pad011")
body.addObject(pad12)
pad12.Profile = sketch14
pad12.Length = 1
pad12.Reversed = True

# Sketch on XY plane
sketch15 = doc.addObject("Sketcher::SketchObject", "Sketch014")
body.addObject(sketch15)
sketch15.AttachmentSupport = (doc.XY_Plane, [""])
sketch15.MapMode = "FlatFace"
sketch15.AttachmentOffset = App.Placement(V(0, 0, 15.3), App.Rotation())
sketch15.addGeometry([
    Part.Circle(V(22.3, 3.7, 0), V(0, 0, 1), 2.8),
    Part.Circle(V(22.3, 3.7, 0), V(0, 0, 1), 1.6),
], False)
sketch15.addConstraint([
    Sketcher.Constraint("Coincident", 1, 3, 0, 3),
    Sketcher.Constraint("Diameter", 0, Q("5.5 mm")),
    Sketcher.Constraint("Diameter", 1, Q("3.1 mm")),
    Sketcher.Constraint("DistanceX", -1, 1, 0, 3, Q("22.3 mm")),
    Sketcher.Constraint("DistanceY", -1, 1, 0, 3, Q("3.7 mm")),
])
pad13 = doc.addObject("PartDesign::Pad", "Pad012")
body.addObject(pad13)
pad13.Profile = sketch15
pad13.Length = 2

doc.recompute()
